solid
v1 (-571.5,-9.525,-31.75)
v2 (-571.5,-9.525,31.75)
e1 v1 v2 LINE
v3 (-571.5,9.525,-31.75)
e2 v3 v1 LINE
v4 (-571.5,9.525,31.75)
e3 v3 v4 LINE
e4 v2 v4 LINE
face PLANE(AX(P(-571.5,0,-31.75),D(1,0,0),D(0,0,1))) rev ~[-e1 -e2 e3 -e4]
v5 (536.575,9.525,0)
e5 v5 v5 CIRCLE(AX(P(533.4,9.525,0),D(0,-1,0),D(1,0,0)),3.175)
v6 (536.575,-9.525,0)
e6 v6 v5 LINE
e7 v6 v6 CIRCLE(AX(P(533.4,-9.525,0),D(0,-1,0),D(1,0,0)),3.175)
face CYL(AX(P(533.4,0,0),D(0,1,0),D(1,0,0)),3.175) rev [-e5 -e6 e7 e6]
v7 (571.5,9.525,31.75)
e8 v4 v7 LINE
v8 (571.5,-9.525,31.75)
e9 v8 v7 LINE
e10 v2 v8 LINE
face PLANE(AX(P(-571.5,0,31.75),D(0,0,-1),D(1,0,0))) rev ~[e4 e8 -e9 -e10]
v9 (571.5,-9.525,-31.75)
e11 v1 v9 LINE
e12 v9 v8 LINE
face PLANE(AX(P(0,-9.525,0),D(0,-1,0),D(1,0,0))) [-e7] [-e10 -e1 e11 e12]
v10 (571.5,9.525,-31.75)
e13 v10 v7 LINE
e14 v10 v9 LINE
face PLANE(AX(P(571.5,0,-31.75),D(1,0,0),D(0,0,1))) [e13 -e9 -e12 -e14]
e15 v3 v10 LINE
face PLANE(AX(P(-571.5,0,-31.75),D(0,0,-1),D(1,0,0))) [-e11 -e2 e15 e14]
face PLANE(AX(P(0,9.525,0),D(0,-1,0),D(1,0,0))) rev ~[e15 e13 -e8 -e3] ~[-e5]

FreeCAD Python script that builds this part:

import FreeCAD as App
import Part
import Sketcher

V = App.Vector
Q = App.Units.Quantity


def add_polygon(sketch, points):
    """Adds a closed chain of lines whose ends are joined by coincident constraints."""
    first, n = sketch.GeometryCount, len(points)
    for a, b in zip(points, points[1:] + points[:1]):
        sketch.addGeometry(Part.LineSegment(App.Vector(*a, 0), App.Vector(*b, 0)), False)
    for i in range(n):
        sketch.addConstraint(Sketcher.Constraint("Coincident", first + i, 2, first + (i + 1) % n, 1))

doc = App.newDocument("Part")
params = doc.addObject("Spreadsheet::Sheet", "Params")
for row, (alias, value) in enumerate([
    ("sketch1_diameter", "0.25 in"),
    ("sketch1_width", "45 in"),
    ("sketch1_height", "2.5 in"),
    ("pad1_length", "0.75 in"),
], start=1):
    params.set(f"A{row}", alias)
    params.set(f"B{row}", "=" + value)
    params.setAlias(f"B{row}", alias)

body = doc.addObject("PartDesign::Body", "Body")

# Sketch on XZ plane
sketch1 = body.newObject("Sketcher::SketchObject", "Sketch")
sketch1.AttachmentSupport = (doc.getObject("XZ_Plane"), [""])
sketch1.MapMode = "FlatFace"
add_polygon(sketch1, [(-571.5, 31.8), (-571.5, -31.8), (571.5, -31.8), (571.5, 31.8)])  # lines 0-3
sketch1.addGeometry(Part.Circle(V(533.4, 0, 0), V(0, 0, 1), 3.2), False)  # 4
sketch1.addConstraint([
    Sketcher.Constraint("Vertical", 0),
    Sketcher.Constraint("Horizontal", 1),
    Sketcher.Constraint("Vertical", 2),
    Sketcher.Constraint("Horizontal", 3),
    Sketcher.Constraint("Symmetric", 0, 2, 2, 2, -1, 1),
    Sketcher.Constraint("PointOnObject", 4, 3, -1),
    Sketcher.Constraint("Diameter", 4, Q("0.25 in")),
    Sketcher.Constraint("DistanceX", 1, 1, 1, 2, Q("45 in")),
    Sketcher.Constraint("DistanceY", 0, 2, 0, 1, Q("2.5 in")),
    Sketcher.Constraint("DistanceX", -1, 1, 4, 3, Q("21 in")),
])
sketch1.setExpression("Constraints[10]", "Params.sketch1_diameter")
sketch1.setExpression("Constraints[11]", "Params.sketch1_width")
sketch1.setExpression("Constraints[12]", "Params.sketch1_height")
pad1 = body.newObject("PartDesign::Pad", "Pad")
pad1.Profile = sketch1
pad1.setExpression("Length", "Params.pad1_length")
pad1.Midplane = True

doc.recompute()
